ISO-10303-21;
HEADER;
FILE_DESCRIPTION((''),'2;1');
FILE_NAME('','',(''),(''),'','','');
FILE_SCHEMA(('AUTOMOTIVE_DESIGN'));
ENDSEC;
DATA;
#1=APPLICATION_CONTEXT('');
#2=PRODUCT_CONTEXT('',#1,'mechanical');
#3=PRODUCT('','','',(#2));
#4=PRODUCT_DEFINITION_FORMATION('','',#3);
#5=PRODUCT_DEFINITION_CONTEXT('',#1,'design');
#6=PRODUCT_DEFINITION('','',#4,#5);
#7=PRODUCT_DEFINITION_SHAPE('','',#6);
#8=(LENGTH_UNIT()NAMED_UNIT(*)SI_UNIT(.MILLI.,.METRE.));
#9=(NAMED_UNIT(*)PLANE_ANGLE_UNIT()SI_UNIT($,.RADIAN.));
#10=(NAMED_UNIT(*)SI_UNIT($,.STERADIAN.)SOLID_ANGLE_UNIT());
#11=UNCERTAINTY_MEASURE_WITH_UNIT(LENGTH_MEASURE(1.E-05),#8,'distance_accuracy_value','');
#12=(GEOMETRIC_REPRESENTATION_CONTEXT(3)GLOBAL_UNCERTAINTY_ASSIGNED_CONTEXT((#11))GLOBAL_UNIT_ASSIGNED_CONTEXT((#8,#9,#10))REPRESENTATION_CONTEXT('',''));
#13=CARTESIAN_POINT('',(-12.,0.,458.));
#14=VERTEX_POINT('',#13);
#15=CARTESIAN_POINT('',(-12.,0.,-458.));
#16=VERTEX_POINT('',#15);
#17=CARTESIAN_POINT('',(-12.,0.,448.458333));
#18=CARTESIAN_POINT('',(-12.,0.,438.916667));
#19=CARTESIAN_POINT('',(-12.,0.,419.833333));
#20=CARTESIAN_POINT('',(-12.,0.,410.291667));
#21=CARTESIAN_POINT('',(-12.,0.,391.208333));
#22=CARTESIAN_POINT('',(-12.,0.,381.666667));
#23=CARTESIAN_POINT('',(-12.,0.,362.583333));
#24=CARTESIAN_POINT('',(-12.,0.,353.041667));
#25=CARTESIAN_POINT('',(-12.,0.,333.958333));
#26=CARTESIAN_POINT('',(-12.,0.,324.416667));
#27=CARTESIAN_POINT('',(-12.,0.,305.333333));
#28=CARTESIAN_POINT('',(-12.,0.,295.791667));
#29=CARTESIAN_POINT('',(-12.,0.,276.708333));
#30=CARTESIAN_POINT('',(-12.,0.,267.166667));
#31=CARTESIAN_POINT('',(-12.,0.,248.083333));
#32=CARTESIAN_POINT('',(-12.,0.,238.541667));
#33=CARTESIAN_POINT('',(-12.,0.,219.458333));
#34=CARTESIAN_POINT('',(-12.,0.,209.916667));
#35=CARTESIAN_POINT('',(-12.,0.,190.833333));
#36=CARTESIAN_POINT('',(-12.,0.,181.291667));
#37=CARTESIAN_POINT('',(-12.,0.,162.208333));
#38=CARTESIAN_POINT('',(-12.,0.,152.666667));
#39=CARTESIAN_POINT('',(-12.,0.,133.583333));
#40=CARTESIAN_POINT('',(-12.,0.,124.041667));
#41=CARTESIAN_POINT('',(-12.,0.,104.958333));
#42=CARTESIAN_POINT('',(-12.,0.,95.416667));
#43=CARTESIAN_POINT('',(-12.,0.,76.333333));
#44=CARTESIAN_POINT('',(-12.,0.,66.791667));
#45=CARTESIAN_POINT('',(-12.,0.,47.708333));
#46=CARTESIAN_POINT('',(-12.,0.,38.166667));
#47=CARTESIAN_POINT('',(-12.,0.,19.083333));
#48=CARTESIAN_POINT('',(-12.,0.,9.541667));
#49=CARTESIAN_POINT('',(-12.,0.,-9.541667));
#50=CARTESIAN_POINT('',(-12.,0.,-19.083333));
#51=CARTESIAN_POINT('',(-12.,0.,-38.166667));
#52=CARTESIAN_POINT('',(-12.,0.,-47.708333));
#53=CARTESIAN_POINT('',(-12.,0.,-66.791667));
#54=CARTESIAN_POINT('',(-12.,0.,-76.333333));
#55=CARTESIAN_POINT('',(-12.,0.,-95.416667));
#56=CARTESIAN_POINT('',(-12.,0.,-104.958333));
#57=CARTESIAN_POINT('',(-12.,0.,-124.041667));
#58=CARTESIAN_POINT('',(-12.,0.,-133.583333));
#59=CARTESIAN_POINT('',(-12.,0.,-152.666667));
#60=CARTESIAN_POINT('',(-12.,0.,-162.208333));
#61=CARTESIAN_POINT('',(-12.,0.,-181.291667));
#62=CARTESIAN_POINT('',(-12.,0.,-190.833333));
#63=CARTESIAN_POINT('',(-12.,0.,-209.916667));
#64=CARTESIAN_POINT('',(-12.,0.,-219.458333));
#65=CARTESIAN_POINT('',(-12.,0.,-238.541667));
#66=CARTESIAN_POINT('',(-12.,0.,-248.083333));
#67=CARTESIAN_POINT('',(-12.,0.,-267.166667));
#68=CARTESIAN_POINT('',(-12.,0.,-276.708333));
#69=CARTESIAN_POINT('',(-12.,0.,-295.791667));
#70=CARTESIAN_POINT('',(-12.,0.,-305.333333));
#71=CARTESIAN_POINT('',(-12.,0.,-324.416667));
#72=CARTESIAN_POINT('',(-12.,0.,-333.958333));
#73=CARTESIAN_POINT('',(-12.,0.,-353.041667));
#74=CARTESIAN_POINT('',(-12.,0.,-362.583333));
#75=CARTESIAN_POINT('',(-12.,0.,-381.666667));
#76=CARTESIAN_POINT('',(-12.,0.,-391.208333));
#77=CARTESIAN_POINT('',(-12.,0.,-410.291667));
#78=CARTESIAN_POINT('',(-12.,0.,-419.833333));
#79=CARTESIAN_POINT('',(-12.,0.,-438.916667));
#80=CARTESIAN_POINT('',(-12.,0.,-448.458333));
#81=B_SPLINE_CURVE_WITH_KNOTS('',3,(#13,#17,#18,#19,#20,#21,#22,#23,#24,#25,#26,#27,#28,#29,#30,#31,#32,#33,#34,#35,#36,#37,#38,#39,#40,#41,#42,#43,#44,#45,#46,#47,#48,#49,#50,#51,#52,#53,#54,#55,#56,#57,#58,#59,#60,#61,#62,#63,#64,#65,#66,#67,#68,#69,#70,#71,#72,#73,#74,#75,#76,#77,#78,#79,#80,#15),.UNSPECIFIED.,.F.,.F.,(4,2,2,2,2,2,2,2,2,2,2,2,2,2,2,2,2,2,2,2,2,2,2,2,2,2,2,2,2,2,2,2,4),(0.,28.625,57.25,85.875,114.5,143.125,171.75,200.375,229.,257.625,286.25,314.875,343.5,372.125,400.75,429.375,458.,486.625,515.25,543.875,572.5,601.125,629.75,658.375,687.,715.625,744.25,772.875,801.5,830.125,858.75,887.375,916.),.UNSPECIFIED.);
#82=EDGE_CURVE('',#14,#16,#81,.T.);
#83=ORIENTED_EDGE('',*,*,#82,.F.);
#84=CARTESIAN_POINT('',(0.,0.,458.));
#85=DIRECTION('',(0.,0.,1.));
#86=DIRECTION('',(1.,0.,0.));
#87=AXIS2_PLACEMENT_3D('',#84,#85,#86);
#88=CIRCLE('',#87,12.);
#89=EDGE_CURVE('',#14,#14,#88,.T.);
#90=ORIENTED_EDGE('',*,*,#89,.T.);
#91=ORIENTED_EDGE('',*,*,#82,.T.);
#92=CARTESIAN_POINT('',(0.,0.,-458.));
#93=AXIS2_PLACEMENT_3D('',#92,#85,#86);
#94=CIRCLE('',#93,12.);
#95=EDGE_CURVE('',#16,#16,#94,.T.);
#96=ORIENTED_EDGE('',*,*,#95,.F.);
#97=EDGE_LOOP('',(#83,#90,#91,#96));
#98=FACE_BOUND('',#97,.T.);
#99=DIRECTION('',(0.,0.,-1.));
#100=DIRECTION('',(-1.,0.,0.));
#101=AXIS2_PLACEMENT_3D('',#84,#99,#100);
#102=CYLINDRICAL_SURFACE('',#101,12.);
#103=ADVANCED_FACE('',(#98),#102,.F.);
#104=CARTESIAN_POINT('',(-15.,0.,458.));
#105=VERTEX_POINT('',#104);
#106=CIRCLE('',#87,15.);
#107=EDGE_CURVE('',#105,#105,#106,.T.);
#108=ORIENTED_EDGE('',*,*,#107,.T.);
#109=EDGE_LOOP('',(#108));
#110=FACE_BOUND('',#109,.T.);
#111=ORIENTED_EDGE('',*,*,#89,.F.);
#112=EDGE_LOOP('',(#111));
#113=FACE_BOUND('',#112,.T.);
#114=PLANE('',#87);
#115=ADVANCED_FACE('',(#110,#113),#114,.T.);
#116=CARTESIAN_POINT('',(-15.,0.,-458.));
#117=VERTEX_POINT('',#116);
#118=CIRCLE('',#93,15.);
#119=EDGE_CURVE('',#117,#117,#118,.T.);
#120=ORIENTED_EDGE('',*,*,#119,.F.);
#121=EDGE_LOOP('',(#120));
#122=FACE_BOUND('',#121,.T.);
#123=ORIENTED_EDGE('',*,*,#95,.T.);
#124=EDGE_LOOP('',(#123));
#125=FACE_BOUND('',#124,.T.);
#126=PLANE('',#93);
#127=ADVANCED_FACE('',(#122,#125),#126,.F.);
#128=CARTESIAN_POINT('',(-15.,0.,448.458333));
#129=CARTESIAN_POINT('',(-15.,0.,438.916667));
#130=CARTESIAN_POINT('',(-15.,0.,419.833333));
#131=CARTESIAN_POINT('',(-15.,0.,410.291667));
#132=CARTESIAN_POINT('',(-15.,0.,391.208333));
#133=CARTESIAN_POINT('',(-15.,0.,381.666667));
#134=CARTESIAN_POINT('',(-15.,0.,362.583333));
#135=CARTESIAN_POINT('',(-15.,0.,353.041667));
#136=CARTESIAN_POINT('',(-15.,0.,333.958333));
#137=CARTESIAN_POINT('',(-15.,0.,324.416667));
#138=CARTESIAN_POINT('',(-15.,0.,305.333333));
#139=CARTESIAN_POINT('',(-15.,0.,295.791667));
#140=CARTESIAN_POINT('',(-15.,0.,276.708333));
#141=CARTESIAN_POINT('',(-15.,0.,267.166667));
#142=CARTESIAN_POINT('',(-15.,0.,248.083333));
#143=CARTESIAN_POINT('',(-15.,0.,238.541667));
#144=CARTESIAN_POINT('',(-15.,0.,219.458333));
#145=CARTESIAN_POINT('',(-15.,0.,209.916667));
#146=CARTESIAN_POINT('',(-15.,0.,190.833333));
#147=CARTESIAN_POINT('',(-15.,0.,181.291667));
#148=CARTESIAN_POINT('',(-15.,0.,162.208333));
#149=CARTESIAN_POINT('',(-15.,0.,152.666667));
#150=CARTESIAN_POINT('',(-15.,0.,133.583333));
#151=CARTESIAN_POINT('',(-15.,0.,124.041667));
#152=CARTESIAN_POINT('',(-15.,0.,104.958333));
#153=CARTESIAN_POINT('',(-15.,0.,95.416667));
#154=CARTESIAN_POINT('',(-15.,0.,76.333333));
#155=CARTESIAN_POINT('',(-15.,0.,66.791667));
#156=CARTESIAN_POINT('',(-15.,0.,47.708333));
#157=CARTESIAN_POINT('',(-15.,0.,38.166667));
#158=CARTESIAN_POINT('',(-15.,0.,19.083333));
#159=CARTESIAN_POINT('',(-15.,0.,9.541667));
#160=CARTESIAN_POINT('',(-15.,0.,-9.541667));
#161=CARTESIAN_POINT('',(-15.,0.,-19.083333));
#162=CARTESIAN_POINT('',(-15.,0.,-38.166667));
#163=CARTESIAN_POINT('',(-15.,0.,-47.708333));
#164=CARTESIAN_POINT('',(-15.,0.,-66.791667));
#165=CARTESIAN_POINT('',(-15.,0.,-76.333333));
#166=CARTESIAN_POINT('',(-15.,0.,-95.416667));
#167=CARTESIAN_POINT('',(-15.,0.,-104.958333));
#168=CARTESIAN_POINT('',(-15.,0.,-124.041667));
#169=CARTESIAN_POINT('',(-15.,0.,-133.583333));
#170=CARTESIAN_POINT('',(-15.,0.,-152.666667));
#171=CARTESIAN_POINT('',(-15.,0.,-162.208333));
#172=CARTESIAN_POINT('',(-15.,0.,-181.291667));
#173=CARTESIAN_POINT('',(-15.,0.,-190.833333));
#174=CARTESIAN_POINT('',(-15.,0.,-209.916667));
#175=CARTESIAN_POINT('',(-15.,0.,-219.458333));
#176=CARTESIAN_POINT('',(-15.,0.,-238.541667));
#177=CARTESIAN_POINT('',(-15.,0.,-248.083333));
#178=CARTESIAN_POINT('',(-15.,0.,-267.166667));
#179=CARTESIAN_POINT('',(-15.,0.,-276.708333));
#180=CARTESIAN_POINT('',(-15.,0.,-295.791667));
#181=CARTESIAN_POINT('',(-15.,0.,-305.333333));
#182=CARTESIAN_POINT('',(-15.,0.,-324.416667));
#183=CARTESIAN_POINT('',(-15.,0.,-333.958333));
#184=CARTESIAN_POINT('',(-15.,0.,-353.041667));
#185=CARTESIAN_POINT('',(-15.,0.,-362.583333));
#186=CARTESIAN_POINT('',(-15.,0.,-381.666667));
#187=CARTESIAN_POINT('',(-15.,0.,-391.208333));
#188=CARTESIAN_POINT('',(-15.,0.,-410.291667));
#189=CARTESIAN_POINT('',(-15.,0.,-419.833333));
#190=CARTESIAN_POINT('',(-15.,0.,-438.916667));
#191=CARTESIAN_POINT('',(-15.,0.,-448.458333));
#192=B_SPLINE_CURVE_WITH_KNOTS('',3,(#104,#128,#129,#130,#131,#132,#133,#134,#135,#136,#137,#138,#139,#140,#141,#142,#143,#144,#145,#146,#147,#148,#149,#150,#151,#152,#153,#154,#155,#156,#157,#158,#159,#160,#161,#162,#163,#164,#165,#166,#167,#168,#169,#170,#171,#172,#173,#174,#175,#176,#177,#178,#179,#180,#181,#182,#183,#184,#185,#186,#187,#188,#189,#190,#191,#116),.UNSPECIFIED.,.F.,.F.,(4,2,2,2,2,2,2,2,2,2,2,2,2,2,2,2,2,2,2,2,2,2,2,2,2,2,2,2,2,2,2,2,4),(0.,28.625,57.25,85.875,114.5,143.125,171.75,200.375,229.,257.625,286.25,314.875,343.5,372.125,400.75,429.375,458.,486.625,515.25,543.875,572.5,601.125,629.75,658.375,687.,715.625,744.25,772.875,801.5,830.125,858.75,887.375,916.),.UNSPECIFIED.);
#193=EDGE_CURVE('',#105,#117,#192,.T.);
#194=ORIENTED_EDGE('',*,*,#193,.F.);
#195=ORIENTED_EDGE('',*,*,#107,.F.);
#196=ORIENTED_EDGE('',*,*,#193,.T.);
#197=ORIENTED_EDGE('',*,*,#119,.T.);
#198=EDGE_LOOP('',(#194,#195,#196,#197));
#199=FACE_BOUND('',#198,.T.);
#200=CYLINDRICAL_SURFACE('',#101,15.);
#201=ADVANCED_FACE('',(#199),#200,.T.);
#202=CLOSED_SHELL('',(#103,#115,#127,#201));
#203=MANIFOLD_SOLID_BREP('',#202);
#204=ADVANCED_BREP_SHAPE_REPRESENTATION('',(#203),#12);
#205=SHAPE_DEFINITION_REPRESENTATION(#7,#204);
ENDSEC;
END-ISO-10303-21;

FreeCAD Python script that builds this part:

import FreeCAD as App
import Part
import Sketcher

V = App.Vector

doc = App.newDocument("Part")
body = doc.addObject("PartDesign::Body", "Body")

# Sketch on XY plane
sketch1 = body.newObject("Sketcher::SketchObject", "Sketch")
sketch1.AttachmentSupport = (doc.getObject("XY_Plane"), [""])
sketch1.MapMode = "FlatFace"
sketch1.addGeometry(Part.Circle(V(0, 0, 0), V(0, 0, 1), 15), False)
sketch1.addGeometry(Part.Circle(V(0, 0, 0), V(0, 0, 1), 12), False)
sketch1.addConstraint(Sketcher.Constraint("Coincident", 0, 3, -1, 1))
sketch1.addConstraint(Sketcher.Constraint("Coincident", 1, 3, -1, 1))
sketch1.addConstraint(Sketcher.Constraint("Diameter", 0, 30.0))
sketch1.addConstraint(Sketcher.Constraint("Diameter", 1, 24.0))
pad1 = body.newObject("PartDesign::Pad", "Pad")
pad1.Profile = sketch1
pad1.Length = 916
pad1.Midplane = True

doc.recompute()
